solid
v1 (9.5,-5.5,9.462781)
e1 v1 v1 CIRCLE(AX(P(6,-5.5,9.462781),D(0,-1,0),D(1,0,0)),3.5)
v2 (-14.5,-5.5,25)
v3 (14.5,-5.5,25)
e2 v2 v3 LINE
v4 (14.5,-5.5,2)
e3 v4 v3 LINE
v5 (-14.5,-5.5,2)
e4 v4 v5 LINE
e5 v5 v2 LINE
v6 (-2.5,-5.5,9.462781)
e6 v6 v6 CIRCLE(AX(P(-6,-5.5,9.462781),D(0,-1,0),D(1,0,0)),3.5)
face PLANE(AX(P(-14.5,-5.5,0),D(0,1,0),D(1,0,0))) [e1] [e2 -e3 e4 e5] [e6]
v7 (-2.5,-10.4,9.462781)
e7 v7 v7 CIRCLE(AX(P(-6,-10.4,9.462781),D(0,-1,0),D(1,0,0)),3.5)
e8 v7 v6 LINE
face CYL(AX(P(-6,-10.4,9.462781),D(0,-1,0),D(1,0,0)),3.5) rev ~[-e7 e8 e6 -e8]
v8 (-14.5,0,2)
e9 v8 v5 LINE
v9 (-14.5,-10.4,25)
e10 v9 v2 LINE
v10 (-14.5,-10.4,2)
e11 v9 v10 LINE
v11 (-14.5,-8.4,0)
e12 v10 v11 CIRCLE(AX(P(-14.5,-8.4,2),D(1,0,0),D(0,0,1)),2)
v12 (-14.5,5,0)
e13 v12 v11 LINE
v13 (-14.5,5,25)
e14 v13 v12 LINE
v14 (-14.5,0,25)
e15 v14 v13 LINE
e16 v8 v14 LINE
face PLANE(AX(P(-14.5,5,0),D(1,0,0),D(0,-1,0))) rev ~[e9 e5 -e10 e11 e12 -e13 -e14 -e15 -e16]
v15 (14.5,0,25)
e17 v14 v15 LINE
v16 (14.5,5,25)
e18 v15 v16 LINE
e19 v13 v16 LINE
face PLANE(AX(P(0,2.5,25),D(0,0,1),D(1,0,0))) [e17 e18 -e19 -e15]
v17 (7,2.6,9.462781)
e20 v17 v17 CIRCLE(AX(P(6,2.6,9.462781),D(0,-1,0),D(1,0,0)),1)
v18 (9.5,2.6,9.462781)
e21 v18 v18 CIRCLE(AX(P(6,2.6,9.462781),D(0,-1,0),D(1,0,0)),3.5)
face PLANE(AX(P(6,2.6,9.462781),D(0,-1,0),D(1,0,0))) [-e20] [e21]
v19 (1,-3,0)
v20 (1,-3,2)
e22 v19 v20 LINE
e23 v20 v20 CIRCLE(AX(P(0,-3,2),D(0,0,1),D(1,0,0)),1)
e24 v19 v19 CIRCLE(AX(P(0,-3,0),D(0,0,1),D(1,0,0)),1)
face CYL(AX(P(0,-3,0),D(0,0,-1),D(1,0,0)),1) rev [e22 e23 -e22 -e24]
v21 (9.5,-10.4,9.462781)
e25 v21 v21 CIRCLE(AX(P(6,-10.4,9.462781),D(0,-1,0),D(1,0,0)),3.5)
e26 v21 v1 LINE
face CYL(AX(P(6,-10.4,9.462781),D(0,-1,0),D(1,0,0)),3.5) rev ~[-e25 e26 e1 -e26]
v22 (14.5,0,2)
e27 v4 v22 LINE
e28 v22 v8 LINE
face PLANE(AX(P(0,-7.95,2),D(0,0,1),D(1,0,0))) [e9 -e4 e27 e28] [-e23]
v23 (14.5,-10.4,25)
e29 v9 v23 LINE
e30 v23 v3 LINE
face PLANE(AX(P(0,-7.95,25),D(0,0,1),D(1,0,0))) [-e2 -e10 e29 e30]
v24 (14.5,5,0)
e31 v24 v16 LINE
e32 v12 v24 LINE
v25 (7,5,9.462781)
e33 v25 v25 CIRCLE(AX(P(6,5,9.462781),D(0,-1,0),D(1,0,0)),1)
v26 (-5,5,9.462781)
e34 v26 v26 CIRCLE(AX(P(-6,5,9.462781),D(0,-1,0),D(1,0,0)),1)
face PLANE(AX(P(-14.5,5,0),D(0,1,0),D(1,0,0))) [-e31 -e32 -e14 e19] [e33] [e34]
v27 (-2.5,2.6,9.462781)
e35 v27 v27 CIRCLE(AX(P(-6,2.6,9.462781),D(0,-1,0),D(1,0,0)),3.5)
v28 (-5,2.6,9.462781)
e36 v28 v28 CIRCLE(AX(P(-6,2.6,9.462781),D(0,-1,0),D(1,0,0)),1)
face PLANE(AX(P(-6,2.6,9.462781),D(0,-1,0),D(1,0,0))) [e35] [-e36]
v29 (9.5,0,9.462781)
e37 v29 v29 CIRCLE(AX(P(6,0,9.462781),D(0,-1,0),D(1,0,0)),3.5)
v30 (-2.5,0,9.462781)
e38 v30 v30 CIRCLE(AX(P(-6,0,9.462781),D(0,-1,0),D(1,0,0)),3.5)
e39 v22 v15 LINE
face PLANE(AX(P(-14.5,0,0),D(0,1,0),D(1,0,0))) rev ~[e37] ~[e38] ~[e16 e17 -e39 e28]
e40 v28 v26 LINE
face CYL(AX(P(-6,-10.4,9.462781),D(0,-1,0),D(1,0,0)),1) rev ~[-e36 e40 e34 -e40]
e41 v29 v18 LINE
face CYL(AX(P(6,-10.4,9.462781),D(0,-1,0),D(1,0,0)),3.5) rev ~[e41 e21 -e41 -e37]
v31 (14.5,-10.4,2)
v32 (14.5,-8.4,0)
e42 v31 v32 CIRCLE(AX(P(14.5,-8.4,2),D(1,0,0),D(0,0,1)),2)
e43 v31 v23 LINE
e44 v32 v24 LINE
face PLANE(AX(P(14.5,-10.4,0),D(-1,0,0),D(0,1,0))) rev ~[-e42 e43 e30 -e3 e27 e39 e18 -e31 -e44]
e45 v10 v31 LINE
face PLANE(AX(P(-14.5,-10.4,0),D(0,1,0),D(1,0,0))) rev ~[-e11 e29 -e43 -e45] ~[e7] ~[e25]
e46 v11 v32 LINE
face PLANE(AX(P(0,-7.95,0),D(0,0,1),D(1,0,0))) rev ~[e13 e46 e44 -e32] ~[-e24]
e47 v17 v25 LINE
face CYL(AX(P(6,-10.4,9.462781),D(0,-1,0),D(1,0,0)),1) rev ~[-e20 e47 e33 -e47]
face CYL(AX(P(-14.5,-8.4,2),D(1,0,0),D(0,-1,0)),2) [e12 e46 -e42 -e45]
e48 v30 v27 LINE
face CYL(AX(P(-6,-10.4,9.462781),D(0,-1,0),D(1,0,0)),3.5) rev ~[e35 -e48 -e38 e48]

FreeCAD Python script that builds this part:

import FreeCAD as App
import Part
import Sketcher
Q = App.Units.Quantity


def edges_at(feature, points):
    """Names of the edges that pass closest to the given points."""
    edges = feature.Shape.Edges
    near = lambda p: min(range(len(edges)), key=lambda i: edges[i].distToShape(Part.Vertex(*p))[0])
    return sorted({f"Edge{near(p) + 1}" for p in points})


def add_polygon(sketch, points):
    """Adds a closed chain of lines whose ends are joined by coincident constraints."""
    first, n = sketch.GeometryCount, len(points)
    for a, b in zip(points, points[1:] + points[:1]):
        sketch.addGeometry(Part.LineSegment(App.Vector(*a, 0), App.Vector(*b, 0)), False)
    for i in range(n):
        sketch.addConstraint(Sketcher.Constraint("Coincident", first + i, 2, first + (i + 1) % n, 1))

doc = App.newDocument("Part")
body = doc.addObject("PartDesign::Body", "Body")

# Sketch on XY plane
sketch1 = body.newObject("Sketcher::SketchObject", "Sketch")
sketch1.AttachmentSupport = (doc.getObject("XY_Plane"), [""])
sketch1.MapMode = "FlatFace"
add_polygon(sketch1, [(-14.5, -10.4), (14.5, -10.4), (14.5, 5), (-14.5, 5)])  # lines 0-3
sketch1.addGeometry(Part.Circle(App.Vector(0, -3, 0), App.Vector(0, 0, 1), 1), False)  # 4
sketch1.addConstraint(Sketcher.Constraint("Horizontal", 0))
sketch1.addConstraint(Sketcher.Constraint("Vertical", 1))
sketch1.addConstraint(Sketcher.Constraint("Horizontal", 2))
sketch1.addConstraint(Sketcher.Constraint("Vertical", 3))
sketch1.addConstraint(Sketcher.Constraint("PointOnObject", 4, 3, -2))
sketch1.addConstraint(Sketcher.Constraint("Diameter", 4, Q("2 mm")))
sketch1.addConstraint(Sketcher.Constraint("DistanceX", 0, 1, 0, 2, Q("29 mm")))
sketch1.addConstraint(Sketcher.Constraint("DistanceY", 1, 1, 1, 2, Q("15.4 mm")))
sketch1.addConstraint(Sketcher.Constraint("DistanceY", 4, 3, -1, 1, Q("3 mm")))
sketch1.addConstraint(Sketcher.Constraint("DistanceY", -1, 1, 1, 2, Q("5 mm")))
sketch1.addConstraint(Sketcher.Constraint("DistanceX", -1, 1, 0, 2, Q("14.5 mm")))
pad1 = body.newObject("PartDesign::Pad", "Pad")
pad1.Profile = sketch1
pad1.Length = 2

# Sketch on XY plane
sketch2 = body.newObject("Sketcher::SketchObject", "Sketch001")
sketch2.AttachmentSupport = (doc.getObject("XY_Plane"), [""])
sketch2.MapMode = "FlatFace"
add_polygon(sketch2, [(-14.5, -5.5), (-14.5, -10.4), (14.5, -10.4), (14.5, -5.5)])  # lines 0-3
add_polygon(sketch2, [(-14.5, 5), (-14.5, 0), (14.5, 0), (14.5, 5)])  # lines 4-7
sketch2.addConstraint(Sketcher.Constraint("Vertical", 0))
sketch2.addConstraint(Sketcher.Constraint("Horizontal", 1))
sketch2.addConstraint(Sketcher.Constraint("Vertical", 2))
sketch2.addConstraint(Sketcher.Constraint("Horizontal", 3))
sketch2.addConstraint(Sketcher.Constraint("Vertical", 4))
sketch2.addConstraint(Sketcher.Constraint("Horizontal", 5))
sketch2.addConstraint(Sketcher.Constraint("Vertical", 6))
sketch2.addConstraint(Sketcher.Constraint("Horizontal", 7))
sketch2.addConstraint(Sketcher.Constraint("Symmetric", 4, 2, 5, 2, -1, 1))
sketch2.addConstraint(Sketcher.Constraint("Vertical", 3, 2, 4, 2))
sketch2.addConstraint(Sketcher.Constraint("Vertical", 2, 2, 5, 2))
sketch2.addConstraint(Sketcher.Constraint("DistanceX", 1, 1, 1, 2, Q("29 mm")))
sketch2.addConstraint(Sketcher.Constraint("DistanceY", 4, 2, 4, 1, Q("5 mm")))
sketch2.addConstraint(Sketcher.Constraint("DistanceY", 0, 2, 0, 1, Q("4.9 mm")))
sketch2.addConstraint(Sketcher.Constraint("DistanceY", 0, 2, -1, 1, Q("10.4 mm")))
pad2 = body.newObject("PartDesign::Pad", "Pad001")
pad2.Profile = sketch2
pad2.Length = 25

# Sketch on XZ plane
sketch3 = body.newObject("Sketcher::SketchObject", "Sketch002")
sketch3.AttachmentSupport = (doc.getObject("XZ_Plane"), [""])
sketch3.MapMode = "FlatFace"
sketch3.AttachmentOffset = App.Placement(App.Vector(0, 0, 10.4), App.Rotation())
sketch3.addGeometry(Part.Circle(App.Vector(6, 9.5, 0), App.Vector(0, 0, 1), 1), False)
sketch3.addGeometry(Part.Circle(App.Vector(-6, 9.5, 0), App.Vector(0, 0, 1), 1), False)
sketch3.addConstraint(Sketcher.Constraint("Equal", 0, 1))
sketch3.addConstraint(Sketcher.Constraint("Symmetric", 0, 3, 1, 3, -2))
sketch3.addConstraint(Sketcher.Constraint("Diameter", 0, Q("2 mm")))
sketch3.addConstraint(Sketcher.Constraint("DistanceX", -1, 1, 0, 3, Q("6 mm")))
sketch3.addConstraint(Sketcher.Constraint("DistanceY", -1, 1, 0, 3, Q("9.462781 mm")))
pocket1 = body.newObject("PartDesign::Pocket", "Pocket")
pocket1.Profile = sketch3
pocket1.Length = 25

# Sketch on XZ plane
sketch4 = body.newObject("Sketcher::SketchObject", "Sketch003")
sketch4.AttachmentSupport = (doc.getObject("XZ_Plane"), [""])
sketch4.MapMode = "FlatFace"
sketch4.AttachmentOffset = App.Placement(App.Vector(0, 0, 10.4), App.Rotation())
sketch4.addGeometry(Part.Circle(App.Vector(-6, 9.5, 0), App.Vector(0, 0, 1), 3.5), False)
sketch4.addGeometry(Part.Circle(App.Vector(-6, 9.5, 0), App.Vector(0, 0, 1), 1), False)
sketch4.addGeometry(Part.Circle(App.Vector(6, 9.5, 0), App.Vector(0, 0, 1), 3.5), False)
sketch4.addGeometry(Part.Circle(App.Vector(6, 9.5, 0), App.Vector(0, 0, 1), 1), False)
sketch4.addConstraint(Sketcher.Constraint("Coincident", 1, 3, 0, 3))
sketch4.addConstraint(Sketcher.Constraint("Coincident", 3, 3, 2, 3))
sketch4.addConstraint(Sketcher.Constraint("Equal", 0, 2))
sketch4.addConstraint(Sketcher.Constraint("Equal", 1, 3))
sketch4.addConstraint(Sketcher.Constraint("Symmetric", 0, 3, 2, 3, -2))
sketch4.addConstraint(Sketcher.Constraint("Diameter", 0, Q("7 mm")))
sketch4.addConstraint(Sketcher.Constraint("Diameter", 1, Q("2 mm")))
sketch4.addConstraint(Sketcher.Constraint("DistanceX", 0, 3, -1, 1, Q("6 mm")))
sketch4.addConstraint(Sketcher.Constraint("DistanceY", -1, 1, 0, 3, Q("9.462781 mm")))
pocket2 = body.newObject("PartDesign::Pocket", "Pocket001")
pocket2.Profile = sketch4
pocket2.Length = 13
doc.recompute()

fillet = body.newObject("PartDesign::Fillet", "Fillet")
fillet.Base = (pocket2, edges_at(pocket2, [(0, -10.4, 0)]))
fillet.Radius = 2

doc.recompute()
